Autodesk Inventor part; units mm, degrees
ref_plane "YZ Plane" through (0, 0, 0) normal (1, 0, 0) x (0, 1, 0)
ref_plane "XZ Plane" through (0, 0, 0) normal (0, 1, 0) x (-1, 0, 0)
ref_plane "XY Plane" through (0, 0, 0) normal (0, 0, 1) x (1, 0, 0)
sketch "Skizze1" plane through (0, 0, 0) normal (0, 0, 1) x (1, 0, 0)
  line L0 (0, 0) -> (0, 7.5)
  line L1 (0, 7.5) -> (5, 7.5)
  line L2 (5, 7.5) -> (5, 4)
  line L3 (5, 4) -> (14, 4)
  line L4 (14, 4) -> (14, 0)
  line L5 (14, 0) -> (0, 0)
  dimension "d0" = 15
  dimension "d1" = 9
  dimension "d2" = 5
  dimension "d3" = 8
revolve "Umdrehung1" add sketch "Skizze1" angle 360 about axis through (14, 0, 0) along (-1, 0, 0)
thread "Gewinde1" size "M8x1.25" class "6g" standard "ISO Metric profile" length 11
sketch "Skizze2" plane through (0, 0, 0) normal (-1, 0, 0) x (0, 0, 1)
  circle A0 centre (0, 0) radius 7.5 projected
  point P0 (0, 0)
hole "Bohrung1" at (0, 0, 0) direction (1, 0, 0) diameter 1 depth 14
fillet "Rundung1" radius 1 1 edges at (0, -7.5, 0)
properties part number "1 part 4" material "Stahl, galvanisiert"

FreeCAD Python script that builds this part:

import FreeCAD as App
import Part
import Sketcher
Q = App.Units.Quantity


def edges_at(feature, points):
    """Names of the edges that pass closest to the given points."""
    edges = feature.Shape.Edges
    near = lambda p: min(range(len(edges)), key=lambda i: edges[i].distToShape(Part.Vertex(*p))[0])
    return sorted({f"Edge{near(p) + 1}" for p in points})


def add_polygon(sketch, points):
    """Adds a closed chain of lines whose ends are joined by coincident constraints."""
    first, n = sketch.GeometryCount, len(points)
    for a, b in zip(points, points[1:] + points[:1]):
        sketch.addGeometry(Part.LineSegment(App.Vector(*a, 0), App.Vector(*b, 0)), False)
    for i in range(n):
        sketch.addConstraint(Sketcher.Constraint("Coincident", first + i, 2, first + (i + 1) % n, 1))

doc = App.newDocument("Part")
body = doc.addObject("PartDesign::Body", "Body")

# Sketch on XY plane
sketch1 = body.newObject("Sketcher::SketchObject", "Sketch")
sketch1.AttachmentSupport = (doc.getObject("XY_Plane"), [""])
sketch1.MapMode = "FlatFace"
add_polygon(sketch1, [(0, 7.5), (0, 0), (14, 0), (14, 4), (5, 4), (5, 7.5)])  # lines 0-5
sketch1.addConstraint([
    Sketcher.Constraint("Vertical", 0),
    Sketcher.Constraint("Horizontal", 1),
    Sketcher.Constraint("Vertical", 2),
    Sketcher.Constraint("Horizontal", 3),
    Sketcher.Constraint("Vertical", 4),
    Sketcher.Constraint("Horizontal", 5),
    Sketcher.Constraint("Coincident", 0, 2, -1, 1),
    Sketcher.Constraint("DistanceX", 3, 2, 3, 1, Q("9 mm")),
    Sketcher.Constraint("DistanceX", 5, 2, 5, 1, Q("5 mm")),
    Sketcher.Constraint("DistanceY", 2, 1, 2, 2, Q("4 mm")),
    Sketcher.Constraint("DistanceY", 0, 2, 0, 1, Q("7.5 mm")),
])
revolution = body.newObject("PartDesign::Revolution", "Revolution")
revolution.Profile = sketch1
revolution.ReferenceAxis = (sketch1, ["H_Axis"])
revolution.Angle = 360

# Sketch on YZ plane
sketch2 = body.newObject("Sketcher::SketchObject", "Sketch001")
sketch2.AttachmentSupport = (doc.getObject("YZ_Plane"), [""])
sketch2.MapMode = "FlatFace"
sketch2.addGeometry(Part.Circle(App.Vector(0, 0, 0), App.Vector(0, 0, 1), 0.5), False)
sketch2.addConstraint([
    Sketcher.Constraint("Coincident", 0, 3, -1, 1),
    Sketcher.Constraint("Diameter", 0, Q("1 mm")),
])
doc.recompute()
hole = body.newObject("PartDesign::Hole", "Hole")
hole.Profile = sketch2
hole.ThreadType = "None"
hole.Diameter = 1
hole.DepthType = "Dimension"
hole.Depth = 14
hole.DrillPoint = "Flat"
hole.Reversed = True
doc.recompute()

fillet = body.newObject("PartDesign::Fillet", "Fillet")
fillet.Base = (hole, edges_at(hole, [(0, -7.5, 0)]))
fillet.Radius = 1

doc.recompute()
